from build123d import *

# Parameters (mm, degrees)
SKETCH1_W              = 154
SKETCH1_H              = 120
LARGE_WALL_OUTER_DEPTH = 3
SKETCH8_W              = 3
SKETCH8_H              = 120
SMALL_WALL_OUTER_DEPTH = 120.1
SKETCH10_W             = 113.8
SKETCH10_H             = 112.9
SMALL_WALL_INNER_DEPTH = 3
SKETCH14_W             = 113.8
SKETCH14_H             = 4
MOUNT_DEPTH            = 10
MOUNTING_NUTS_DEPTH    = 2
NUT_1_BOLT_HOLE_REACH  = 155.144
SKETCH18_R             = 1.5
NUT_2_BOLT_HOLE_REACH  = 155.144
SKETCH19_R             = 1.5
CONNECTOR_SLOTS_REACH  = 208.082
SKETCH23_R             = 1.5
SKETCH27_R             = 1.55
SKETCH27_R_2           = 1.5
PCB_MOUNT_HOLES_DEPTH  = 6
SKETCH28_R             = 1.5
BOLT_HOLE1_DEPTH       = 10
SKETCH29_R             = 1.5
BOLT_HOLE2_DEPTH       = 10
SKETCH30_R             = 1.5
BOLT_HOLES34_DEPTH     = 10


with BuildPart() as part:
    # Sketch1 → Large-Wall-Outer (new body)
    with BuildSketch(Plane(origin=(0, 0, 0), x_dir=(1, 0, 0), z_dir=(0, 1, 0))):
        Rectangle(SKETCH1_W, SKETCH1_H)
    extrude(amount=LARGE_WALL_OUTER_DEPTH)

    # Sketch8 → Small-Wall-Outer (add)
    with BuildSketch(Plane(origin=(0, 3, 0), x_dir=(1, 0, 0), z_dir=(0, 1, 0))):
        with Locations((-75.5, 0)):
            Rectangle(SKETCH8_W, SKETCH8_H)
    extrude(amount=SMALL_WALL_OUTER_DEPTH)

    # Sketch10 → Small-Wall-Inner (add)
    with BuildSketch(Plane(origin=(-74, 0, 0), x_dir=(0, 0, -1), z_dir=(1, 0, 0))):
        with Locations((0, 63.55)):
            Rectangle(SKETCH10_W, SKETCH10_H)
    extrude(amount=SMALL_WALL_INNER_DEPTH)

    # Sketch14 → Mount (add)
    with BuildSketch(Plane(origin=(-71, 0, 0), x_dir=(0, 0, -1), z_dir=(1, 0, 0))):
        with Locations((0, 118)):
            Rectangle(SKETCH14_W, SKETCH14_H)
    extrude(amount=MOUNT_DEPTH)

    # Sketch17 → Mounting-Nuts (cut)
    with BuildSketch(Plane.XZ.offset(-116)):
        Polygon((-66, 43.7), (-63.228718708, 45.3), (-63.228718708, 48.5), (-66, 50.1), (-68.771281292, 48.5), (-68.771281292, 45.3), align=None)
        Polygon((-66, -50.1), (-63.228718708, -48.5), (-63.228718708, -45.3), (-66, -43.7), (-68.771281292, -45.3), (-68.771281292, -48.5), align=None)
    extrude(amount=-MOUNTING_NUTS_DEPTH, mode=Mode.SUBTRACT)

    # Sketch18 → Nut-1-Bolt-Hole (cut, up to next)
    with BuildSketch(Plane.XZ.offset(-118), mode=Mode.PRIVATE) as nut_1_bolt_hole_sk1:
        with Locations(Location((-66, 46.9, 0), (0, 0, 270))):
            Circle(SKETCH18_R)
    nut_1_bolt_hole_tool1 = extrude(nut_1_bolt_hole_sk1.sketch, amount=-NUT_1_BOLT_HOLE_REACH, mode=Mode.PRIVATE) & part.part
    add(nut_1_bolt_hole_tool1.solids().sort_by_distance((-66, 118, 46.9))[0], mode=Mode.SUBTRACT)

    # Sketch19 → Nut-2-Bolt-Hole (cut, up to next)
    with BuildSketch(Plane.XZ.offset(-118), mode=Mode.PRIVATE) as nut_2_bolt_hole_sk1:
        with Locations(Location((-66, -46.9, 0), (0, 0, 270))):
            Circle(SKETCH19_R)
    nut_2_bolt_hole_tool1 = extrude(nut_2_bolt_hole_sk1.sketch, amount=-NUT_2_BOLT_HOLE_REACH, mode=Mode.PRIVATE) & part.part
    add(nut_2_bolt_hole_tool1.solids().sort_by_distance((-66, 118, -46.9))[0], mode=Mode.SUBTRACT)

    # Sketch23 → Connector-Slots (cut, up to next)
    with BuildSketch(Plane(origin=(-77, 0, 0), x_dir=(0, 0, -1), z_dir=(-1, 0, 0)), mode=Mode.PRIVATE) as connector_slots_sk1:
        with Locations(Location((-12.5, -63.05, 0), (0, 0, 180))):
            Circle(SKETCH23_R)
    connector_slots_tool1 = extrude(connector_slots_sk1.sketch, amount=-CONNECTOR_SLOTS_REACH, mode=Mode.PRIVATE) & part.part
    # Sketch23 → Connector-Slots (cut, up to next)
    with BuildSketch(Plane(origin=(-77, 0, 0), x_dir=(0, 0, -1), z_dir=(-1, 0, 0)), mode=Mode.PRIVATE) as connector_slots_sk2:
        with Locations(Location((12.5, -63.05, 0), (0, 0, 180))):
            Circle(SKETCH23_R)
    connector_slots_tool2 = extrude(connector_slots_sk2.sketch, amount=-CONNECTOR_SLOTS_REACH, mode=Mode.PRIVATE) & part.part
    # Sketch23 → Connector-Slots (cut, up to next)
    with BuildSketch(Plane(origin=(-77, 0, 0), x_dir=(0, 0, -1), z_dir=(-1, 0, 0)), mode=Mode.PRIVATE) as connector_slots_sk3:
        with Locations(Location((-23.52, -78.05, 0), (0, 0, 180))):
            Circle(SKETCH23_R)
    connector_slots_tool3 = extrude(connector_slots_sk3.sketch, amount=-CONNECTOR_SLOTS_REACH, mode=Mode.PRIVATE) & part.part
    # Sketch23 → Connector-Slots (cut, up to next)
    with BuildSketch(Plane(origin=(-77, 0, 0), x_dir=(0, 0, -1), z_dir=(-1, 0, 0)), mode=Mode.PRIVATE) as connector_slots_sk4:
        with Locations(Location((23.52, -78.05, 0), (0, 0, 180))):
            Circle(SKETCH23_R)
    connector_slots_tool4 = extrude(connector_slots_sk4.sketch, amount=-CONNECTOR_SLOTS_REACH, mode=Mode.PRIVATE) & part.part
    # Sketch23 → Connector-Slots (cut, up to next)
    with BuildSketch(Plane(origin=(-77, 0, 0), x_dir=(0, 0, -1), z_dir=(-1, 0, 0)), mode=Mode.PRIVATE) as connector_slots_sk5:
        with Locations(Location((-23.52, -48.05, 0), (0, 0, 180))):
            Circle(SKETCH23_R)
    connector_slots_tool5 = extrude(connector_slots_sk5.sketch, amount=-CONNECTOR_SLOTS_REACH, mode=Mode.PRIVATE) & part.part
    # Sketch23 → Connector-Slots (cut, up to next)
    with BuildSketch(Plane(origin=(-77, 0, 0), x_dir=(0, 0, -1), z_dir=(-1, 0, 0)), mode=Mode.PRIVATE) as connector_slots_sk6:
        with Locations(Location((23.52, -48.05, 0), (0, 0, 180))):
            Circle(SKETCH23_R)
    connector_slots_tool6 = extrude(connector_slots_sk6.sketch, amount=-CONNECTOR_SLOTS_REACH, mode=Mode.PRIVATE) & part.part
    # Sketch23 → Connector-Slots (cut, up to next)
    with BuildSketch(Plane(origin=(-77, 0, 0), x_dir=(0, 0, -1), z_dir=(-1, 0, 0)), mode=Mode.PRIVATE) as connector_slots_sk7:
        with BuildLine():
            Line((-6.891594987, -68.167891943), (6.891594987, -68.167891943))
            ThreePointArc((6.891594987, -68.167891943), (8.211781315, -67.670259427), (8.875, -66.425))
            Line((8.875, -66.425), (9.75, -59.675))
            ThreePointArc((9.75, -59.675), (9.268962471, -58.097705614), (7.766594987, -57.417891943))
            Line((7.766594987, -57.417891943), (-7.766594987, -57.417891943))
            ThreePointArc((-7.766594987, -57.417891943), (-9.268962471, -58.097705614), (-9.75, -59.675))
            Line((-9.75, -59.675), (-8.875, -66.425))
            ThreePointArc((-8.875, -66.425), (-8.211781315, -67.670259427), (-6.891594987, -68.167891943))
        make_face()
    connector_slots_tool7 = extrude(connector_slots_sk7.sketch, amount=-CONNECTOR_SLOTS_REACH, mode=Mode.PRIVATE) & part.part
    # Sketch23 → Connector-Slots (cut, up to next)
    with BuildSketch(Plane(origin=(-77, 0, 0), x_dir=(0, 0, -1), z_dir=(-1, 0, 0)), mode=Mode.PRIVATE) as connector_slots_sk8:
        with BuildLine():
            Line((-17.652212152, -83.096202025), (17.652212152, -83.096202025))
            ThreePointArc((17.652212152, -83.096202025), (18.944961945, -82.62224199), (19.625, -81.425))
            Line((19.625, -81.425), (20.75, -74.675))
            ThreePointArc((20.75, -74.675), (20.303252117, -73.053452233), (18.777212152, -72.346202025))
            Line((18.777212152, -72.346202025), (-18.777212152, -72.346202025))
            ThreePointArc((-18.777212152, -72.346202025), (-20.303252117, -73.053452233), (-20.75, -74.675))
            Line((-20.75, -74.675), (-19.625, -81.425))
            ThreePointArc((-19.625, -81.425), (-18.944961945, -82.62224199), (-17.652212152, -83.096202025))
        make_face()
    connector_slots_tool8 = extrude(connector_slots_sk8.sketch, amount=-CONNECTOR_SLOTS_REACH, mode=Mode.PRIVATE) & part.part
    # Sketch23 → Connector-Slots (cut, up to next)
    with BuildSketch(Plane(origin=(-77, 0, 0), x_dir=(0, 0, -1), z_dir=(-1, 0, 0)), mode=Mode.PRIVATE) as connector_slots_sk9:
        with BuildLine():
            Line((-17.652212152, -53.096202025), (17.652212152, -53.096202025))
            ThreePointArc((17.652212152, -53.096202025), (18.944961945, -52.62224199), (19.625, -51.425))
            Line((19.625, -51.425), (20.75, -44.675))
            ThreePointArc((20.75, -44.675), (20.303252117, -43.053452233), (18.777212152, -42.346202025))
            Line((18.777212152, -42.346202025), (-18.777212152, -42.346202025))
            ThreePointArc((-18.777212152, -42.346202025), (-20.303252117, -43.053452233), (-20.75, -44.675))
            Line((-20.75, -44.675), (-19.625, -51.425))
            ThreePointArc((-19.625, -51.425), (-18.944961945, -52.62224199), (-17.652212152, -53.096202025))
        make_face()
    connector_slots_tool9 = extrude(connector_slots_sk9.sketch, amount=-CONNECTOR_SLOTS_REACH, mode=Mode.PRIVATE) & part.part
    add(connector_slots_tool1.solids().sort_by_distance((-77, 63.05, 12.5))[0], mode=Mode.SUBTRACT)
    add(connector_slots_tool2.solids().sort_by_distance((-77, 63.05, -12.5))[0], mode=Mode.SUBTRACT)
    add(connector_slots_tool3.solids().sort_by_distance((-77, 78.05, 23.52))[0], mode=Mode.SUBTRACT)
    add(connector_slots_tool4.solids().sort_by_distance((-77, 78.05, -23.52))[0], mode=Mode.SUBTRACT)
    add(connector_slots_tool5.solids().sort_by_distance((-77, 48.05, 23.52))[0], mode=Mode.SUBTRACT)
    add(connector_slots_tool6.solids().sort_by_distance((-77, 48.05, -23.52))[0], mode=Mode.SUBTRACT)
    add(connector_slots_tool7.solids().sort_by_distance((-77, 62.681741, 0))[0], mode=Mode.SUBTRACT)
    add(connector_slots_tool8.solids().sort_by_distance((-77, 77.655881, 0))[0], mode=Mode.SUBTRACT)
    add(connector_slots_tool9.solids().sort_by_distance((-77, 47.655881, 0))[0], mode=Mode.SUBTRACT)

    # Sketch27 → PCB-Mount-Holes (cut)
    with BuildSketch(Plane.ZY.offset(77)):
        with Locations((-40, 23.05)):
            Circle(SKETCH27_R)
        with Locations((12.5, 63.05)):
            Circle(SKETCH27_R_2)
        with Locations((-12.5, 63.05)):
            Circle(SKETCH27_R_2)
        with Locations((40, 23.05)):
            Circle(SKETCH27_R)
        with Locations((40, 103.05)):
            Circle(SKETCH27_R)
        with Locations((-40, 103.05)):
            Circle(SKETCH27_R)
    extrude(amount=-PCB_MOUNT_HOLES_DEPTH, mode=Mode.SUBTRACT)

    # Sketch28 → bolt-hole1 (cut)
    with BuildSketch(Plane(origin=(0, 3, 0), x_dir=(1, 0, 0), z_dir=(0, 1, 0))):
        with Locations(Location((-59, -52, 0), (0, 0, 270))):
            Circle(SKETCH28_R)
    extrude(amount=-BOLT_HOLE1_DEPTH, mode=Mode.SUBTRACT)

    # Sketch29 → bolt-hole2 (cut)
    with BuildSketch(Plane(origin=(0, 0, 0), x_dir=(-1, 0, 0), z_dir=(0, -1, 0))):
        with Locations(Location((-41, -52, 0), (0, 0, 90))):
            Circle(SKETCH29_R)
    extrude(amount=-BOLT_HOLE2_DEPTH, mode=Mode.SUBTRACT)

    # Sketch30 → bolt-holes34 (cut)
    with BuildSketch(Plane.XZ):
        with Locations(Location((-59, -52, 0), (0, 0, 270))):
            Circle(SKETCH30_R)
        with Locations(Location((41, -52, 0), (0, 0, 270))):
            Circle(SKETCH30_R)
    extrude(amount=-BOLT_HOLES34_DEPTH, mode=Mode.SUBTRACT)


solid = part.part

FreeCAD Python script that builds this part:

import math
import FreeCAD as App
import Part
import Sketcher

V = App.Vector
Q = App.Units.Quantity

doc = App.newDocument("Part")
body = doc.addObject("PartDesign::Body", "Body")

sketch1 = body.newObject("Sketcher::SketchObject", "Sketch")
sketch1.AttachmentSupport = (doc.getObject("XZ_Plane"), [""])
sketch1.MapMode = "FlatFace"
sketch1.addGeometry(Part.LineSegment(V(-77, -60, 0), V(-77, 60, 0)), False)
sketch1.addGeometry(Part.LineSegment(V(-77, 60, 0), V(77, 60, 0)), False)
sketch1.addGeometry(Part.LineSegment(V(77, 60, 0), V(77, -60, 0)), False)
sketch1.addGeometry(Part.LineSegment(V(77, -60, 0), V(-77, -60, 0)), False)
sketch1.addConstraint(Sketcher.Constraint("Coincident", 0, 2, 1, 1))
sketch1.addConstraint(Sketcher.Constraint("Coincident", 1, 2, 2, 1))
sketch1.addConstraint(Sketcher.Constraint("Coincident", 2, 2, 3, 1))
sketch1.addConstraint(Sketcher.Constraint("Coincident", 3, 2, 0, 1))
sketch1.addConstraint(Sketcher.Constraint("Vertical", 0))
sketch1.addConstraint(Sketcher.Constraint("Horizontal", 1))
sketch1.addConstraint(Sketcher.Constraint("Vertical", 2))
sketch1.addConstraint(Sketcher.Constraint("Horizontal", 3))
sketch1.addConstraint(Sketcher.Constraint("Symmetric", 0, 2, 2, 2, -1, 1))
sketch1.addConstraint(Sketcher.Constraint("DistanceX", 1, 1, 1, 2, Q("154 mm")))
sketch1.addConstraint(Sketcher.Constraint("DistanceY", 0, 1, 0, 2, Q("120 mm")))
pad1 = body.newObject("PartDesign::Pad", "Pad")
pad1.Profile = sketch1
pad1.Length = 3
pad1.Reversed = True

sketch2 = body.newObject("Sketcher::SketchObject", "Sketch001")
sketch2.AttachmentSupport = (doc.getObject("XZ_Plane"), [""])
sketch2.MapMode = "FlatFace"
sketch2.AttachmentOffset = App.Placement(V(0, 0, -3), App.Rotation())
sketch2.addGeometry(Part.LineSegment(V(-77, -60, 0), V(-77, 60, 0)), False)
sketch2.addGeometry(Part.LineSegment(V(-77, 60, 0), V(-74, 60, 0)), False)
sketch2.addGeometry(Part.LineSegment(V(-74, 60, 0), V(-74, -60, 0)), False)
sketch2.addGeometry(Part.LineSegment(V(-74, -60, 0), V(-77, -60, 0)), False)
sketch2.addConstraint(Sketcher.Constraint("Coincident", 0, 2, 1, 1))
sketch2.addConstraint(Sketcher.Constraint("Coincident", 1, 2, 2, 1))
sketch2.addConstraint(Sketcher.Constraint("Coincident", 2, 2, 3, 1))
sketch2.addConstraint(Sketcher.Constraint("Coincident", 3, 2, 0, 1))
sketch2.addConstraint(Sketcher.Constraint("Vertical", 0))
sketch2.addConstraint(Sketcher.Constraint("Horizontal", 1))
sketch2.addConstraint(Sketcher.Constraint("Vertical", 2))
sketch2.addConstraint(Sketcher.Constraint("Horizontal", 3))
sketch2.addConstraint(Sketcher.Constraint("DistanceX", 1, 1, 1, 2, Q("3 mm")))
sketch2.addConstraint(Sketcher.Constraint("DistanceY", 0, 1, 0, 2, Q("120 mm")))
sketch2.addConstraint(Sketcher.Constraint("DistanceX", 0, 2, -1, 1, Q("77 mm")))
sketch2.addConstraint(Sketcher.Constraint("DistanceY", -1, 1, 0, 2, Q("60 mm")))
pad2 = body.newObject("PartDesign::Pad", "Pad001")
pad2.Profile = sketch2
pad2.Length = 120.1
pad2.Reversed = True

sketch3 = body.newObject("Sketcher::SketchObject", "Sketch002")
sketch3.AttachmentSupport = (doc.getObject("YZ_Plane"), [""])
sketch3.MapMode = "FlatFace"
sketch3.AttachmentOffset = App.Placement(V(0, 0, -74), App.Rotation())
sketch3.addGeometry(Part.LineSegment(V(120, 57, 0), V(7, 57, 0)), False)
sketch3.addGeometry(Part.LineSegment(V(7, 57, 0), V(7, -57, 0)), False)
sketch3.addGeometry(Part.LineSegment(V(7, -57, 0), V(120, -57, 0)), False)
sketch3.addGeometry(Part.LineSegment(V(120, -57, 0), V(120, 57, 0)), False)
sketch3.addConstraint(Sketcher.Constraint("Coincident", 0, 2, 1, 1))
sketch3.addConstraint(Sketcher.Constraint("Coincident", 1, 2, 2, 1))
sketch3.addConstraint(Sketcher.Constraint("Coincident", 2, 2, 3, 1))
sketch3.addConstraint(Sketcher.Constraint("Coincident", 3, 2, 0, 1))
sketch3.addConstraint(Sketcher.Constraint("Horizontal", 0))
sketch3.addConstraint(Sketcher.Constraint("Vertical", 1))
sketch3.addConstraint(Sketcher.Constraint("Horizontal", 2))
sketch3.addConstraint(Sketcher.Constraint("Vertical", 3))
sketch3.addConstraint(Sketcher.Constraint("DistanceX", 0, 2, 0, 1, Q("112.9 mm")))
sketch3.addConstraint(Sketcher.Constraint("DistanceY", 1, 2, 1, 1, Q("113.8 mm")))
sketch3.addConstraint(Sketcher.Constraint("DistanceX", -1, 1, 2, 2, Q("120 mm")))
sketch3.addConstraint(Sketcher.Constraint("DistanceY", -1, 1, 0, 2, Q("56.9 mm")))
pad3 = body.newObject("PartDesign::Pad", "Pad002")
pad3.Profile = sketch3
pad3.Length = 3

sketch4 = body.newObject("Sketcher::SketchObject", "Sketch003")
sketch4.AttachmentSupport = (doc.getObject("YZ_Plane"), [""])
sketch4.MapMode = "FlatFace"
sketch4.AttachmentOffset = App.Placement(V(0, 0, -71), App.Rotation())
sketch4.addGeometry(Part.LineSegment(V(120, 56.9, 0), V(116, 56.9, 0)), False)
sketch4.addGeometry(Part.LineSegment(V(116, 56.9, 0), V(116, -56.9, 0)), False)
sketch4.addGeometry(Part.LineSegment(V(116, -56.9, 0), V(120, -56.9, 0)), False)
sketch4.addGeometry(Part.LineSegment(V(120, -56.9, 0), V(120, 56.9, 0)), False)
sketch4.addConstraint(Sketcher.Constraint("Coincident", 0, 2, 1, 1))
sketch4.addConstraint(Sketcher.Constraint("Coincident", 1, 2, 2, 1))
sketch4.addConstraint(Sketcher.Constraint("Coincident", 2, 2, 3, 1))
sketch4.addConstraint(Sketcher.Constraint("Coincident", 3, 2, 0, 1))
sketch4.addConstraint(Sketcher.Constraint("Horizontal", 0))
sketch4.addConstraint(Sketcher.Constraint("Vertical", 1))
sketch4.addConstraint(Sketcher.Constraint("Horizontal", 2))
sketch4.addConstraint(Sketcher.Constraint("Vertical", 3))
sketch4.addConstraint(Sketcher.Constraint("DistanceX", 0, 2, 0, 1, Q("4 mm")))
sketch4.addConstraint(Sketcher.Constraint("DistanceY", 1, 2, 1, 1, Q("113.8 mm")))
sketch4.addConstraint(Sketcher.Constraint("DistanceX", -1, 1, 0, 2, Q("116 mm")))
sketch4.addConstraint(Sketcher.Constraint("DistanceY", -1, 1, 0, 2, Q("56.9 mm")))
pad4 = body.newObject("PartDesign::Pad", "Pad003")
pad4.Profile = sketch4
pad4.Length = 10

sketch5 = body.newObject("Sketcher::SketchObject", "Sketch004")
sketch5.AttachmentSupport = (doc.getObject("XZ_Plane"), [""])
sketch5.MapMode = "FlatFace"
sketch5.AttachmentOffset = App.Placement(V(0, 0, -116), App.Rotation())
sketch5.addGeometry(Part.LineSegment(V(-66, 43.7, 0), V(-63.2, 45.3, 0)), False)
sketch5.addGeometry(Part.LineSegment(V(-63.2, 45.3, 0), V(-63.2, 48.5, 0)), False)
sketch5.addGeometry(Part.LineSegment(V(-63.2, 48.5, 0), V(-66, 50.1, 0)), False)
sketch5.addGeometry(Part.LineSegment(V(-66, 50.1, 0), V(-68.8, 48.5, 0)), False)
sketch5.addGeometry(Part.LineSegment(V(-68.8, 48.5, 0), V(-68.8, 45.3, 0)), False)
sketch5.addGeometry(Part.LineSegment(V(-68.8, 45.3, 0), V(-66, 43.7, 0)), False)
sketch5.addGeometry(Part.LineSegment(V(-66, -50.1, 0), V(-63.2, -48.5, 0)), False)
sketch5.addGeometry(Part.LineSegment(V(-63.2, -48.5, 0), V(-63.2, -45.3, 0)), False)
sketch5.addGeometry(Part.LineSegment(V(-63.2, -45.3, 0), V(-66, -43.7, 0)), False)
sketch5.addGeometry(Part.LineSegment(V(-66, -43.7, 0), V(-68.8, -45.3, 0)), False)
sketch5.addGeometry(Part.LineSegment(V(-68.8, -45.3, 0), V(-68.8, -48.5, 0)), False)
sketch5.addGeometry(Part.LineSegment(V(-68.8, -48.5, 0), V(-66, -50.1, 0)), False)
sketch5.addConstraint(Sketcher.Constraint("Coincident", 0, 2, 1, 1))
sketch5.addConstraint(Sketcher.Constraint("Coincident", 1, 2, 2, 1))
sketch5.addConstraint(Sketcher.Constraint("Coincident", 2, 2, 3, 1))
sketch5.addConstraint(Sketcher.Constraint("Coincident", 3, 2, 4, 1))
sketch5.addConstraint(Sketcher.Constraint("Coincident", 4, 2, 5, 1))
sketch5.addConstraint(Sketcher.Constraint("Coincident", 5, 2, 0, 1))
sketch5.addConstraint(Sketcher.Constraint("Coincident", 6, 2, 7, 1))
sketch5.addConstraint(Sketcher.Constraint("Coincident", 7, 2, 8, 1))
sketch5.addConstraint(Sketcher.Constraint("Coincident", 8, 2, 9, 1))
sketch5.addConstraint(Sketcher.Constraint("Coincident", 9, 2, 10, 1))
sketch5.addConstraint(Sketcher.Constraint("Coincident", 10, 2, 11, 1))
sketch5.addConstraint(Sketcher.Constraint("Coincident", 11, 2, 6, 1))
sketch5.addConstraint(Sketcher.Constraint("Vertical", 1))
sketch5.addConstraint(Sketcher.Constraint("Vertical", 4))
sketch5.addConstraint(Sketcher.Constraint("Vertical", 7))
sketch5.addConstraint(Sketcher.Constraint("Vertical", 10))
sketch5.addConstraint(Sketcher.Constraint("Symmetric", 1, 2, 6, 2, -1))
sketch5.addConstraint(Sketcher.Constraint("Symmetric", 5, 2, 8, 2, -1))
sketch5.addConstraint(Sketcher.Constraint("Symmetric", 4, 2, 9, 2, -1))
sketch5.addConstraint(Sketcher.Constraint("Symmetric", 2, 2, 11, 2, -1))
sketch5.addConstraint(Sketcher.Constraint("Parallel", 0, 3))
sketch5.addConstraint(Sketcher.Constraint("Parallel", 2, 5))
sketch5.addConstraint(Sketcher.Constraint("Parallel", 3, 6))
sketch5.addConstraint(Sketcher.Constraint("Parallel", 5, 8))
sketch5.addConstraint(Sketcher.Constraint("Parallel", 8, 11))
sketch5.addConstraint(Sketcher.Constraint("Horizontal", 1, 2, 3, 2))
sketch5.addConstraint(Sketcher.Constraint("Horizontal", 0, 2, 4, 2))
sketch5.addConstraint(Sketcher.Constraint("Angle", 0, Q("30 deg")))
sketch5.addConstraint(Sketcher.Constraint("DistanceY", 1, 1, 1, 2, Q("3.2 mm")))
sketch5.addConstraint(Sketcher.Constraint("DistanceX", 2, 2, -1, 1, Q("66 mm")))
sketch5.addConstraint(Sketcher.Constraint("DistanceY", 6, 2, 1, 2, Q("97 mm")))
sketch5.addConstraint(Sketcher.Constraint("DistanceY", 7, 2, 5, 2, Q("89 mm")))
pocket1 = body.newObject("PartDesign::Pocket", "Pocket")
pocket1.Profile = sketch5
pocket1.Length = 2

sketch6 = body.newObject("Sketcher::SketchObject", "Sketch005")
sketch6.AttachmentSupport = (doc.getObject("XZ_Plane"), [""])
sketch6.MapMode = "FlatFace"
sketch6.AttachmentOffset = App.Placement(V(0, 0, -118), App.Rotation())
sketch6.addGeometry(Part.Circle(V(-66, 46.9, 0), V(0, 0, 1), 1.5), False)
sketch6.addConstraint(Sketcher.Constraint("Diameter", 0, Q("3 mm")))
sketch6.addConstraint(Sketcher.Constraint("DistanceX", 0, 3, -1, 1, Q("66 mm")))
sketch6.addConstraint(Sketcher.Constraint("DistanceY", -1, 1, 0, 3, Q("46.9 mm")))
pocket2 = body.newObject("PartDesign::Pocket", "Pocket001")
pocket2.Profile = sketch6
pocket2.Type = "UpToFirst"

sketch7 = body.newObject("Sketcher::SketchObject", "Sketch006")
sketch7.AttachmentSupport = (doc.getObject("XZ_Plane"), [""])
sketch7.MapMode = "FlatFace"
sketch7.AttachmentOffset = App.Placement(V(0, 0, -118), App.Rotation())
sketch7.addGeometry(Part.Circle(V(-66, -46.9, 0), V(0, 0, 1), 1.5), False)
sketch7.addConstraint(Sketcher.Constraint("Diameter", 0, Q("3 mm")))
sketch7.addConstraint(Sketcher.Constraint("DistanceX", 0, 3, -1, 1, Q("66 mm")))
sketch7.addConstraint(Sketcher.Constraint("DistanceY", 0, 3, -1, 1, Q("46.9 mm")))
pocket3 = body.newObject("PartDesign::Pocket", "Pocket002")
pocket3.Profile = sketch7
pocket3.Type = "UpToFirst"

sketch8 = body.newObject("Sketcher::SketchObject", "Sketch007")
sketch8.AttachmentSupport = (doc.getObject("YZ_Plane"), [""])
sketch8.MapMode = "FlatFace"
sketch8.AttachmentOffset = App.Placement(V(0, 0, -77), App.Rotation())
sketch8.addGeometry(Part.Circle(V(63, 12.5, 0), V(0, 0, 1), 1.5), False)
sketch8.addConstraint(Sketcher.Constraint("Diameter", 0, Q("3 mm")))
sketch8.addConstraint(Sketcher.Constraint("DistanceY", -1, 1, 0, 3, Q("12.5 mm")))
sketch8.addConstraint(Sketcher.Constraint("DistanceX", -1, 1, 0, 3, Q("63.05 mm")))
pocket4 = body.newObject("PartDesign::Pocket", "Pocket003")
pocket4.Profile = sketch8
pocket4.Type = "UpToFirst"
pocket4.Reversed = True

sketch9 = body.newObject("Sketcher::SketchObject", "Sketch008")
sketch9.AttachmentSupport = (doc.getObject("YZ_Plane"), [""])
sketch9.MapMode = "FlatFace"
sketch9.AttachmentOffset = App.Placement(V(0, 0, -77), App.Rotation())
sketch9.addGeometry(Part.Circle(V(63, -12.5, 0), V(0, 0, 1), 1.5), False)
sketch9.addConstraint(Sketcher.Constraint("Diameter", 0, Q("3 mm")))
sketch9.addConstraint(Sketcher.Constraint("DistanceY", 0, 3, -1, 1, Q("12.5 mm")))
sketch9.addConstraint(Sketcher.Constraint("DistanceX", -1, 1, 0, 3, Q("63.05 mm")))
pocket5 = body.newObject("PartDesign::Pocket", "Pocket004")
pocket5.Profile = sketch9
pocket5.Type = "UpToFirst"
pocket5.Reversed = True

sketch10 = body.newObject("Sketcher::SketchObject", "Sketch009")
sketch10.AttachmentSupport = (doc.getObject("YZ_Plane"), [""])
sketch10.MapMode = "FlatFace"
sketch10.AttachmentOffset = App.Placement(V(0, 0, -77), App.Rotation())
sketch10.addGeometry(Part.Circle(V(78, 23.5, 0), V(0, 0, 1), 1.5), False)
sketch10.addConstraint(Sketcher.Constraint("Diameter", 0, Q("3 mm")))
sketch10.addConstraint(Sketcher.Constraint("DistanceX", -1, 1, 0, 3, Q("78.05 mm")))
sketch10.addConstraint(Sketcher.Constraint("DistanceY", -1, 1, 0, 3, Q("23.52 mm")))
pocket6 = body.newObject("PartDesign::Pocket", "Pocket005")
pocket6.Profile = sketch10
pocket6.Type = "UpToFirst"
pocket6.Reversed = True

sketch11 = body.newObject("Sketcher::SketchObject", "Sketch010")
sketch11.AttachmentSupport = (doc.getObject("YZ_Plane"), [""])
sketch11.MapMode = "FlatFace"
sketch11.AttachmentOffset = App.Placement(V(0, 0, -77), App.Rotation())
sketch11.addGeometry(Part.Circle(V(78, -23.5, 0), V(0, 0, 1), 1.5), False)
sketch11.addConstraint(Sketcher.Constraint("Diameter", 0, Q("3 mm")))
sketch11.addConstraint(Sketcher.Constraint("DistanceX", -1, 1, 0, 3, Q("78.05 mm")))
sketch11.addConstraint(Sketcher.Constraint("DistanceY", 0, 3, -1, 1, Q("23.52 mm")))
pocket7 = body.newObject("PartDesign::Pocket", "Pocket006")
pocket7.Profile = sketch11
pocket7.Type = "UpToFirst"
pocket7.Reversed = True

sketch12 = body.newObject("Sketcher::SketchObject", "Sketch011")
sketch12.AttachmentSupport = (doc.getObject("YZ_Plane"), [""])
sketch12.MapMode = "FlatFace"
sketch12.AttachmentOffset = App.Placement(V(0, 0, -77), App.Rotation())
sketch12.addGeometry(Part.Circle(V(48, 23.5, 0), V(0, 0, 1), 1.5), False)
sketch12.addConstraint(Sketcher.Constraint("Diameter", 0, Q("3 mm")))
sketch12.addConstraint(Sketcher.Constraint("DistanceX", -1, 1, 0, 3, Q("48.05 mm")))
sketch12.addConstraint(Sketcher.Constraint("DistanceY", -1, 1, 0, 3, Q("23.52 mm")))
pocket8 = body.newObject("PartDesign::Pocket", "Pocket007")
pocket8.Profile = sketch12
pocket8.Type = "UpToFirst"
pocket8.Reversed = True

sketch13 = body.newObject("Sketcher::SketchObject", "Sketch012")
sketch13.AttachmentSupport = (doc.getObject("YZ_Plane"), [""])
sketch13.MapMode = "FlatFace"
sketch13.AttachmentOffset = App.Placement(V(0, 0, -77), App.Rotation())
sketch13.addGeometry(Part.Circle(V(48, -23.5, 0), V(0, 0, 1), 1.5), False)
sketch13.addConstraint(Sketcher.Constraint("Diameter", 0, Q("3 mm")))
sketch13.addConstraint(Sketcher.Constraint("DistanceX", -1, 1, 0, 3, Q("48.05 mm")))
sketch13.addConstraint(Sketcher.Constraint("DistanceY", 0, 3, -1, 1, Q("23.52 mm")))
pocket9 = body.newObject("PartDesign::Pocket", "Pocket008")
pocket9.Profile = sketch13
pocket9.Type = "UpToFirst"
pocket9.Reversed = True

sketch14 = body.newObject("Sketcher::SketchObject", "Sketch013")
sketch14.AttachmentSupport = (doc.getObject("YZ_Plane"), [""])
sketch14.MapMode = "FlatFace"
sketch14.AttachmentOffset = App.Placement(V(0, 0, -77), App.Rotation())
sketch14.addGeometry(Part.LineSegment(V(68.2, 6.9, 0), V(68.2, -6.9, 0)), False)
sketch14.addGeometry(Part.ArcOfCircle(Part.Circle(V(66.2, -6.9, 0), V(0, 0, 1), 2), math.radians(-83), math.radians(0)), False)
sketch14.addGeometry(Part.LineSegment(V(66.4, -8.9, 0), V(59.7, -9.8, 0)), False)
sketch14.addGeometry(Part.ArcOfCircle(Part.Circle(V(59.4, -7.8, 0), V(0, 0, 1), 2), math.radians(180), math.radians(277)), False)
sketch14.addGeometry(Part.LineSegment(V(57.4, -7.8, 0), V(57.4, 7.8, 0)), False)
sketch14.addGeometry(Part.ArcOfCircle(Part.Circle(V(59.4, 7.8, 0), V(0, 0, 1), 2), math.radians(83), math.radians(180)), False)
sketch14.addGeometry(Part.LineSegment(V(59.7, 9.8, 0), V(66.4, 8.9, 0)), False)
sketch14.addGeometry(Part.ArcOfCircle(Part.Circle(V(66.2, 6.9, 0), V(0, 0, 1), 2), math.radians(0), math.radians(83)), False)
sketch14.addConstraint(Sketcher.Constraint("Tangent", 0, 2, 1, 2))
sketch14.addConstraint(Sketcher.Constraint("Tangent", 1, 1, 2, 1))
sketch14.addConstraint(Sketcher.Constraint("Tangent", 2, 2, 3, 2))
sketch14.addConstraint(Sketcher.Constraint("Tangent", 3, 1, 4, 1))
sketch14.addConstraint(Sketcher.Constraint("Tangent", 4, 2, 5, 2))
sketch14.addConstraint(Sketcher.Constraint("Tangent", 5, 1, 6, 1))
sketch14.addConstraint(Sketcher.Constraint("Tangent", 6, 2, 7, 2))
sketch14.addConstraint(Sketcher.Constraint("Tangent", 7, 1, 0, 1))
sketch14.addConstraint(Sketcher.Constraint("Vertical", 0))
sketch14.addConstraint(Sketcher.Constraint("Vertical", 4))
sketch14.addConstraint(Sketcher.Constraint("Equal", 1, 3))
sketch14.addConstraint(Sketcher.Constraint("Equal", 3, 5))
sketch14.addConstraint(Sketcher.Constraint("Equal", 5, 7))
sketch14.addConstraint(Sketcher.Constraint("Symmetric", 2, 2, 5, 1, -1))
sketch14.addConstraint(Sketcher.Constraint("Radius", 1, Q("2 mm")))
sketch14.addConstraint(Sketcher.Constraint("DistanceY", 2, 2, -1, 1, Q("9.75 mm")))
sketch14.addConstraint(Sketcher.Constraint("DistanceX", 3, 3, 1, 3, Q("6.75 mm")))
sketch14.addConstraint(Sketcher.Constraint("DistanceX", -1, 1, 1, 1, Q("66.425 mm")))
sketch14.addConstraint(Sketcher.Constraint("DistanceY", 1, 1, -1, 1, Q("8.875 mm")))
pocket10 = body.newObject("PartDesign::Pocket", "Pocket009")
pocket10.Profile = sketch14
pocket10.Type = "UpToFirst"
pocket10.Reversed = True

sketch15 = body.newObject("Sketcher::SketchObject", "Sketch014")
sketch15.AttachmentSupport = (doc.getObject("YZ_Plane"), [""])
sketch15.MapMode = "FlatFace"
sketch15.AttachmentOffset = App.Placement(V(0, 0, -77), App.Rotation())
sketch15.addGeometry(Part.LineSegment(V(83.1, 17.7, 0), V(83.1, -17.7, 0)), False)
sketch15.addGeometry(Part.ArcOfCircle(Part.Circle(V(81.1, -17.7, 0), V(0, 0, 1), 2), math.radians(-81), math.radians(0)), False)
sketch15.addGeometry(Part.LineSegment(V(81.4, -19.6, 0), V(74.7, -20.8, 0)), False)
sketch15.addGeometry(Part.ArcOfCircle(Part.Circle(V(74.3, -18.8, 0), V(0, 0, 1), 2), math.radians(-180), math.radians(-81)), False)
sketch15.addGeometry(Part.LineSegment(V(72.3, -18.8, 0), V(72.3, 18.8, 0)), False)
sketch15.addGeometry(Part.ArcOfCircle(Part.Circle(V(74.3, 18.8, 0), V(0, 0, 1), 2), math.radians(81), math.radians(180)), False)
sketch15.addGeometry(Part.LineSegment(V(74.7, 20.8, 0), V(81.4, 19.6, 0)), False)
sketch15.addGeometry(Part.ArcOfCircle(Part.Circle(V(81.1, 17.7, 0), V(0, 0, 1), 2), math.radians(0), math.radians(81)), False)
sketch15.addConstraint(Sketcher.Constraint("Tangent", 0, 2, 1, 2))
sketch15.addConstraint(Sketcher.Constraint("Tangent", 1, 1, 2, 1))
sketch15.addConstraint(Sketcher.Constraint("Tangent", 2, 2, 3, 2))
sketch15.addConstraint(Sketcher.Constraint("Tangent", 3, 1, 4, 1))
sketch15.addConstraint(Sketcher.Constraint("Tangent", 4, 2, 5, 2))
sketch15.addConstraint(Sketcher.Constraint("Tangent", 5, 1, 6, 1))
sketch15.addConstraint(Sketcher.Constraint("Tangent", 6, 2, 7, 2))
sketch15.addConstraint(Sketcher.Constraint("Tangent", 7, 1, 0, 1))
sketch15.addConstraint(Sketcher.Constraint("Vertical", 0))
sketch15.addConstraint(Sketcher.Constraint("Vertical", 4))
sketch15.addConstraint(Sketcher.Constraint("Equal", 1, 3))
sketch15.addConstraint(Sketcher.Constraint("Equal", 3, 5))
sketch15.addConstraint(Sketcher.Constraint("Equal", 5, 7))
sketch15.addConstraint(Sketcher.Constraint("Symmetric", 2, 2, 5, 1, -1))
sketch15.addConstraint(Sketcher.Constraint("Radius", 1, Q("2 mm")))
sketch15.addConstraint(Sketcher.Constraint("DistanceY", 2, 2, -1, 1, Q("20.75 mm")))
sketch15.addConstraint(Sketcher.Constraint("DistanceX", 3, 3, 1, 3, Q("6.75 mm")))
sketch15.addConstraint(Sketcher.Constraint("DistanceX", -1, 1, 1, 1, Q("81.425 mm")))
sketch15.addConstraint(Sketcher.Constraint("DistanceY", 1, 1, -1, 1, Q("19.625 mm")))
pocket11 = body.newObject("PartDesign::Pocket", "Pocket010")
pocket11.Profile = sketch15
pocket11.Type = "UpToFirst"
pocket11.Reversed = True

sketch16 = body.newObject("Sketcher::SketchObject", "Sketch015")
sketch16.AttachmentSupport = (doc.getObject("YZ_Plane"), [""])
sketch16.MapMode = "FlatFace"
sketch16.AttachmentOffset = App.Placement(V(0, 0, -77), App.Rotation())
sketch16.addGeometry(Part.LineSegment(V(53.1, 17.7, 0), V(53.1, -17.7, 0)), False)
sketch16.addGeometry(Part.ArcOfCircle(Part.Circle(V(51.1, -17.7, 0), V(0, 0, 1), 2), math.radians(-81), math.radians(0)), False)
sketch16.addGeometry(Part.LineSegment(V(51.4, -19.6, 0), V(44.7, -20.8, 0)), False)
sketch16.addGeometry(Part.ArcOfCircle(Part.Circle(V(44.3, -18.8, 0), V(0, 0, 1), 2), math.radians(-180), math.radians(-81)), False)
sketch16.addGeometry(Part.LineSegment(V(42.3, -18.8, 0), V(42.3, 18.8, 0)), False)
sketch16.addGeometry(Part.ArcOfCircle(Part.Circle(V(44.3, 18.8, 0), V(0, 0, 1), 2), math.radians(81), math.radians(180)), False)
sketch16.addGeometry(Part.LineSegment(V(44.7, 20.8, 0), V(51.4, 19.6, 0)), False)
sketch16.addGeometry(Part.ArcOfCircle(Part.Circle(V(51.1, 17.7, 0), V(0, 0, 1), 2), math.radians(0), math.radians(81)), False)
sketch16.addConstraint(Sketcher.Constraint("Tangent", 0, 2, 1, 2))
sketch16.addConstraint(Sketcher.Constraint("Tangent", 1, 1, 2, 1))
sketch16.addConstraint(Sketcher.Constraint("Tangent", 2, 2, 3, 2))
sketch16.addConstraint(Sketcher.Constraint("Tangent", 3, 1, 4, 1))
sketch16.addConstraint(Sketcher.Constraint("Tangent", 4, 2, 5, 2))
sketch16.addConstraint(Sketcher.Constraint("Tangent", 5, 1, 6, 1))
sketch16.addConstraint(Sketcher.Constraint("Tangent", 6, 2, 7, 2))
sketch16.addConstraint(Sketcher.Constraint("Tangent", 7, 1, 0, 1))
sketch16.addConstraint(Sketcher.Constraint("Vertical", 0))
sketch16.addConstraint(Sketcher.Constraint("Vertical", 4))
sketch16.addConstraint(Sketcher.Constraint("Equal", 1, 3))
sketch16.addConstraint(Sketcher.Constraint("Equal", 3, 5))
sketch16.addConstraint(Sketcher.Constraint("Equal", 5, 7))
sketch16.addConstraint(Sketcher.Constraint("Symmetric", 2, 2, 5, 1, -1))
sketch16.addConstraint(Sketcher.Constraint("Radius", 1, Q("2 mm")))
sketch16.addConstraint(Sketcher.Constraint("DistanceY", 2, 2, -1, 1, Q("20.75 mm")))
sketch16.addConstraint(Sketcher.Constraint("DistanceX", 3, 3, 1, 3, Q("6.75 mm")))
sketch16.addConstraint(Sketcher.Constraint("DistanceX", -1, 1, 1, 1, Q("51.425 mm")))
sketch16.addConstraint(Sketcher.Constraint("DistanceY", 1, 1, -1, 1, Q("19.625 mm")))
pocket12 = body.newObject("PartDesign::Pocket", "Pocket011")
pocket12.Profile = sketch16
pocket12.Type = "UpToFirst"
pocket12.Reversed = True

sketch17 = body.newObject("Sketcher::SketchObject", "Sketch016")
sketch17.AttachmentSupport = (doc.getObject("YZ_Plane"), [""])
sketch17.MapMode = "FlatFace"
sketch17.AttachmentOffset = App.Placement(V(0, 0, -77), App.Rotation())
sketch17.addGeometry(Part.Circle(V(23.1, -40, 0), V(0, 0, 1), 1.6), False)
sketch17.addGeometry(Part.Circle(V(63, 12.5, 0), V(0, 0, 1), 1.5), False)
sketch17.addGeometry(Part.Circle(V(63, -12.5, 0), V(0, 0, 1), 1.5), False)
sketch17.addGeometry(Part.Circle(V(23.1, 40, 0), V(0, 0, 1), 1.6), False)
sketch17.addGeometry(Part.Circle(V(103, 40, 0), V(0, 0, 1), 1.6), False)
sketch17.addGeometry(Part.Circle(V(103, -40, 0), V(0, 0, 1), 1.6), False)
sketch17.addConstraint(Sketcher.Constraint("Equal", 1, 2))
sketch17.addConstraint(Sketcher.Constraint("Equal", 0, 3))
sketch17.addConstraint(Sketcher.Constraint("Equal", 3, 4))
sketch17.addConstraint(Sketcher.Constraint("Equal", 4, 5))
sketch17.addConstraint(Sketcher.Constraint("Symmetric", 1, 3, 2, 3, -1))
sketch17.addConstraint(Sketcher.Constraint("Symmetric", 0, 3, 3, 3, -1))
sketch17.addConstraint(Sketcher.Constraint("Symmetric", 4, 3, 5, 3, -1))
sketch17.addConstraint(Sketcher.Constraint("Horizontal", 3, 3, 4, 3))
sketch17.addConstraint(Sketcher.Constraint("Diameter", 1, Q("3 mm")))
sketch17.addConstraint(Sketcher.Constraint("Diameter", 0, Q("3.1 mm")))
sketch17.addConstraint(Sketcher.Constraint("DistanceY", 0, 3, -1, 1, Q("40 mm")))
sketch17.addConstraint(Sketcher.Constraint("DistanceX", 0, 3, 1, 3, Q("40 mm")))
sketch17.addConstraint(Sketcher.Constraint("DistanceY", 2, 3, 1, 3, Q("25 mm")))
sketch17.addConstraint(Sketcher.Constraint("DistanceX", 1, 3, 4, 3, Q("40 mm")))
sketch17.addConstraint(Sketcher.Constraint("DistanceX", -1, 1, 0, 3, Q("23.05 mm")))
pocket13 = body.newObject("PartDesign::Pocket", "Pocket012")
pocket13.Profile = sketch17
pocket13.Length = 6
pocket13.Reversed = True

sketch18 = body.newObject("Sketcher::SketchObject", "Sketch017")
sketch18.AttachmentSupport = (doc.getObject("XZ_Plane"), [""])
sketch18.MapMode = "FlatFace"
sketch18.AttachmentOffset = App.Placement(V(0, 0, -3), App.Rotation())
sketch18.addGeometry(Part.Circle(V(-59, 52, 0), V(0, 0, 1), 1.5), False)
sketch18.addConstraint(Sketcher.Constraint("Diameter", 0, Q("3 mm")))
sketch18.addConstraint(Sketcher.Constraint("DistanceX", 0, 3, -1, 1, Q("59 mm")))
sketch18.addConstraint(Sketcher.Constraint("DistanceY", -1, 1, 0, 3, Q("52 mm")))
pocket14 = body.newObject("PartDesign::Pocket", "Pocket013")
pocket14.Profile = sketch18
pocket14.Length = 10
pocket14.Reversed = True

sketch19 = body.newObject("Sketcher::SketchObject", "Sketch018")
sketch19.AttachmentSupport = (doc.getObject("XZ_Plane"), [""])
sketch19.MapMode = "FlatFace"
sketch19.addGeometry(Part.Circle(V(41, 52, 0), V(0, 0, 1), 1.5), False)
sketch19.addConstraint(Sketcher.Constraint("Diameter", 0, Q("3 mm")))
sketch19.addConstraint(Sketcher.Constraint("DistanceX", -1, 1, 0, 3, Q("41 mm")))
sketch19.addConstraint(Sketcher.Constraint("DistanceY", -1, 1, 0, 3, Q("52 mm")))
pocket15 = body.newObject("PartDesign::Pocket", "Pocket014")
pocket15.Profile = sketch19
pocket15.Length = 10

sketch20 = body.newObject("Sketcher::SketchObject", "Sketch019")
sketch20.AttachmentSupport = (doc.getObject("XZ_Plane"), [""])
sketch20.MapMode = "FlatFace"
sketch20.addGeometry(Part.Circle(V(-59, -52, 0), V(0, 0, 1), 1.5), False)
sketch20.addGeometry(Part.Circle(V(41, -52, 0), V(0, 0, 1), 1.5), False)
sketch20.addConstraint(Sketcher.Constraint("Equal", 0, 1))
sketch20.addConstraint(Sketcher.Constraint("Horizontal", 0, 3, 1, 3))
sketch20.addConstraint(Sketcher.Constraint("Diameter", 0, Q("3 mm")))
sketch20.addConstraint(Sketcher.Constraint("DistanceX", 0, 3, -1, 1, Q("59 mm")))
sketch20.addConstraint(Sketcher.Constraint("DistanceY", 0, 3, -1, 1, Q("52 mm")))
sketch20.addConstraint(Sketcher.Constraint("DistanceX", -1, 1, 1, 3, Q("41 mm")))
pocket16 = body.newObject("PartDesign::Pocket", "Pocket015")
pocket16.Profile = sketch20
pocket16.Length = 10

doc.recompute()
